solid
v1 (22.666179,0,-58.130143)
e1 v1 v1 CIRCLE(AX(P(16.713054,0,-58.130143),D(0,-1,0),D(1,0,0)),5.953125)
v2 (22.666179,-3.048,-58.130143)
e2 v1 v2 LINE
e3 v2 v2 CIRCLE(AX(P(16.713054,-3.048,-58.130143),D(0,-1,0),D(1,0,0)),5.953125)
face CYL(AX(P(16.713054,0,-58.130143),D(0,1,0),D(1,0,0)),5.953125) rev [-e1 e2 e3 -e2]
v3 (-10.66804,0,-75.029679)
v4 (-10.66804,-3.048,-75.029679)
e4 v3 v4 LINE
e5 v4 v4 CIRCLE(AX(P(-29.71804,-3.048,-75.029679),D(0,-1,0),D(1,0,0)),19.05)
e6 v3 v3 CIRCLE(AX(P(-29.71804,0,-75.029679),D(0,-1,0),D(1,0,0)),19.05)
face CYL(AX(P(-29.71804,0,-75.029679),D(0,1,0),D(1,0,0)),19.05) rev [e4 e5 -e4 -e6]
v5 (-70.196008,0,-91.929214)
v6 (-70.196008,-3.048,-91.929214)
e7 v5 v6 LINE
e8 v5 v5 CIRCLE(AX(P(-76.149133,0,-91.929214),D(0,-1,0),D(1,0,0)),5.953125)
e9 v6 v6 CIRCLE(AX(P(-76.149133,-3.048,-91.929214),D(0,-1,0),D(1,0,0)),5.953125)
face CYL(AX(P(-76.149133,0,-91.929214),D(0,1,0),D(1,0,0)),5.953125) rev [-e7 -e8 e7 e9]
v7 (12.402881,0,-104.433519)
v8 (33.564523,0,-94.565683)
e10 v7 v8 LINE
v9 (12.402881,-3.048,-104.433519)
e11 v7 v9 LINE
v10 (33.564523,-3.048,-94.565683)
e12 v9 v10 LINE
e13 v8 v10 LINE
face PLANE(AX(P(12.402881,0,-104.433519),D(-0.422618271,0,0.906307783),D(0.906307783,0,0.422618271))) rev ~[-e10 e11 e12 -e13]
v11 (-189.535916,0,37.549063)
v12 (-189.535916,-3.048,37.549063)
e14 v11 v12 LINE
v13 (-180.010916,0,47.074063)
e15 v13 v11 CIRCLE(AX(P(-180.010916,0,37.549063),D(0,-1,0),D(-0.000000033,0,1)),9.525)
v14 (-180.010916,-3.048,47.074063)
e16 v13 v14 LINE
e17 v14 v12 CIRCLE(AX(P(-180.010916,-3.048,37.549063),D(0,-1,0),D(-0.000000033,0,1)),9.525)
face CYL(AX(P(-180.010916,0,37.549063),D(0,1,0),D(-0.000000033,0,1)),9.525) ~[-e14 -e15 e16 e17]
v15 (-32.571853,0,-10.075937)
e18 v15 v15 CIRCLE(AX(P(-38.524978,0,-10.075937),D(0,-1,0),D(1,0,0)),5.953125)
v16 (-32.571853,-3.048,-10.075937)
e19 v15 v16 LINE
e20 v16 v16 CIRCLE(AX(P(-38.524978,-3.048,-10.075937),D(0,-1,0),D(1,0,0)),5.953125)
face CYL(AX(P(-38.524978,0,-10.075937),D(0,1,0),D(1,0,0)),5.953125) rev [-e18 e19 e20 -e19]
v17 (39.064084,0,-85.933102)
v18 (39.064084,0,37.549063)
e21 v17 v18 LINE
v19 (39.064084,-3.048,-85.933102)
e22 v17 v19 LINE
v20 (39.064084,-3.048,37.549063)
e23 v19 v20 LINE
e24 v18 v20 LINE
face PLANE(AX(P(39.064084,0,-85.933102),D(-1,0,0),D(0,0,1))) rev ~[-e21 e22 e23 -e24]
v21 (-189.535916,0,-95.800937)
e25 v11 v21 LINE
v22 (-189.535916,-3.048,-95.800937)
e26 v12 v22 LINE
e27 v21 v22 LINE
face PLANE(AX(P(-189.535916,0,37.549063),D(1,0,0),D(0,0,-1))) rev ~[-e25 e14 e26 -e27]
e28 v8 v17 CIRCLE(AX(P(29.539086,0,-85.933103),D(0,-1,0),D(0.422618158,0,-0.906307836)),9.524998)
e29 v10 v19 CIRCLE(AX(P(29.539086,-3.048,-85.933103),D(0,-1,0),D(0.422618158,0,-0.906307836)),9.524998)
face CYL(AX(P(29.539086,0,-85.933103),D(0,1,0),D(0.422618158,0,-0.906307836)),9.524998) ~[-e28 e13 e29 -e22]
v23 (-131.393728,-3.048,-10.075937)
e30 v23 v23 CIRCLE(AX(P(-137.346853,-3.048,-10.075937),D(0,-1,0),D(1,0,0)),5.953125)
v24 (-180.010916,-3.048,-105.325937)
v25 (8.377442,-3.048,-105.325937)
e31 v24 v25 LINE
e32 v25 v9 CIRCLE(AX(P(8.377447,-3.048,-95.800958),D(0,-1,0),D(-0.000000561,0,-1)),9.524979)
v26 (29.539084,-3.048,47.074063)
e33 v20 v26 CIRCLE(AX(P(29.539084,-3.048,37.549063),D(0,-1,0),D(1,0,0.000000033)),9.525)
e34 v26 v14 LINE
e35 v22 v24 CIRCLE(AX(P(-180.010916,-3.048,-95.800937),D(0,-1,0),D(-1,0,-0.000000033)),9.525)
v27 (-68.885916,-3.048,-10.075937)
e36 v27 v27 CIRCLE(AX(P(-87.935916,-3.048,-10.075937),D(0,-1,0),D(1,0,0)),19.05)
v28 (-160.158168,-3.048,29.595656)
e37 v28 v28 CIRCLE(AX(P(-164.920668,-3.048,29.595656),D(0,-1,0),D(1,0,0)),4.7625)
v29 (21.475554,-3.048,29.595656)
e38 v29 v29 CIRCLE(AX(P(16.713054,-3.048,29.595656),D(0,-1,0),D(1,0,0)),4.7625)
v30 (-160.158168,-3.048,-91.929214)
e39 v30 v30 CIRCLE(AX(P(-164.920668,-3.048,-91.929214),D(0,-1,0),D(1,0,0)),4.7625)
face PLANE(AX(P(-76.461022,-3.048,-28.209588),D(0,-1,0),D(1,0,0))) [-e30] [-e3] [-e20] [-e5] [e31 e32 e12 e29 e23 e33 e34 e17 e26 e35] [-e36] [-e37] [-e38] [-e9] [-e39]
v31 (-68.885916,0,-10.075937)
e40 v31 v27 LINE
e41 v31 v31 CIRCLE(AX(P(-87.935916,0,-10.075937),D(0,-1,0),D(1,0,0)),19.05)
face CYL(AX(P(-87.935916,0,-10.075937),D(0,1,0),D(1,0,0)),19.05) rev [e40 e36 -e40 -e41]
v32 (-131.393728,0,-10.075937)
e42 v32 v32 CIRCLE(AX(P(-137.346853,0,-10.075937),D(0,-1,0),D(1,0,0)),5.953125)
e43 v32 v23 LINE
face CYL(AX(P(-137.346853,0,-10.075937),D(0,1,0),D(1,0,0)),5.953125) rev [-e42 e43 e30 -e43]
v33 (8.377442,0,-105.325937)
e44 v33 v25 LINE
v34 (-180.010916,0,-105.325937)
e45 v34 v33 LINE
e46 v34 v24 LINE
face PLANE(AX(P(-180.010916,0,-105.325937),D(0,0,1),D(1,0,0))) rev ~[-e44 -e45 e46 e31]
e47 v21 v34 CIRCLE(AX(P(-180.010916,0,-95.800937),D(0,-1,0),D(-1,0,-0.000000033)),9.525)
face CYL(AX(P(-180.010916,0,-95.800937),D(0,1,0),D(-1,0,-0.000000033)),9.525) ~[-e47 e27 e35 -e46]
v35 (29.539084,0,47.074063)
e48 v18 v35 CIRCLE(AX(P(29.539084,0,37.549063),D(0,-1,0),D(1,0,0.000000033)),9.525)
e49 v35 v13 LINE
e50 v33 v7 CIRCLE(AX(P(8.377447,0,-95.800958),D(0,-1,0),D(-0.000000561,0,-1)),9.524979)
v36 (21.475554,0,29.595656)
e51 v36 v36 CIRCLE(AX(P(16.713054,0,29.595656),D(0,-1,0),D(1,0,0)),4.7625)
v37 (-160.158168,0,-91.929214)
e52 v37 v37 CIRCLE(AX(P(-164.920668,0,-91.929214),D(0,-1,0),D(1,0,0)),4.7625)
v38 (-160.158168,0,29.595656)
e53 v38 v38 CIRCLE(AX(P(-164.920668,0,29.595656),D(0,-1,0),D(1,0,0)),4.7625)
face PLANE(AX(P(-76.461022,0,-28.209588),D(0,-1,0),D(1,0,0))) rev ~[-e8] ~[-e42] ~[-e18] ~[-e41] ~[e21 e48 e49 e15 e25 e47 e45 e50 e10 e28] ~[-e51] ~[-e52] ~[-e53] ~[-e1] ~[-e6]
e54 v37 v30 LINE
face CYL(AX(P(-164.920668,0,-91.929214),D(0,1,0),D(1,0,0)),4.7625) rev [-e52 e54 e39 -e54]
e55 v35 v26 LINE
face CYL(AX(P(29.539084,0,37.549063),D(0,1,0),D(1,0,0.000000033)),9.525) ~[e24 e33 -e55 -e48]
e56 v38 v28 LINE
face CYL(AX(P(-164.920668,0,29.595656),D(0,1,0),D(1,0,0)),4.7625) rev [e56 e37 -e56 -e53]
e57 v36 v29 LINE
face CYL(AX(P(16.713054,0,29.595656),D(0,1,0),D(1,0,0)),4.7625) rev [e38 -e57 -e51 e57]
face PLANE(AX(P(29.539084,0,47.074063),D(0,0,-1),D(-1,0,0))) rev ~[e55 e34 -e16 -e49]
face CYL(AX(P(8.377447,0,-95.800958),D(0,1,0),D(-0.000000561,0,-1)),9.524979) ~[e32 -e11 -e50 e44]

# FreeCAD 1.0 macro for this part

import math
import FreeCAD as App
import Part
import Sketcher
Q = App.Units.Quantity

doc = App.newDocument("Part")
body = doc.addObject("PartDesign::Body", "Body")

sketch1 = doc.addObject("Sketcher::SketchObject", "Sketch")
body.addObject(sketch1)
sketch1.AttachmentSupport = (doc.XZ_Plane, [""])
sketch1.MapMode = "FlatFace"
sketch1.addGeometry([
    Part.ArcOfCircle(Part.Circle(App.Vector(-180, 37.5, 0), App.Vector(0, 0, 1), 9.5), math.radians(90), math.radians(180)),
    Part.LineSegment(App.Vector(-189.5, 37.5, 0), App.Vector(-189.5, -95.8, 0)),
    Part.ArcOfCircle(Part.Circle(App.Vector(-180, -95.8, 0), App.Vector(0, 0, 1), 9.5), math.radians(-180), math.radians(-90)),
    Part.LineSegment(App.Vector(-180, -105.3, 0), App.Vector(8.4, -105.3, 0)),
    Part.ArcOfCircle(Part.Circle(App.Vector(8.4, -95.8, 0), App.Vector(0, 0, 1), 9.5), math.radians(-90), math.radians(-65)),
    Part.LineSegment(App.Vector(12.4, -104.4, 0), App.Vector(33.6, -94.6, 0)),
    Part.ArcOfCircle(Part.Circle(App.Vector(29.5, -85.9, 0), App.Vector(0, 0, 1), 9.5), math.radians(-65), math.radians(0)),
    Part.LineSegment(App.Vector(39.1, -85.9, 0), App.Vector(39.1, 37.5, 0)),
    Part.ArcOfCircle(Part.Circle(App.Vector(29.5, 37.5, 0), App.Vector(0, 0, 1), 9.5), math.radians(0), math.radians(90)),
    Part.LineSegment(App.Vector(29.5, 47.1, 0), App.Vector(-180, 47.1, 0)),
    Part.Circle(App.Vector(-164.9, -91.9, 0), App.Vector(0, 0, 1), 4.8),
    Part.Circle(App.Vector(-76.1, -91.9, 0), App.Vector(0, 0, 1), 6),
    Part.Circle(App.Vector(-29.7, -75, 0), App.Vector(0, 0, 1), 19.1),
    Part.Circle(App.Vector(16.7, -58.1, 0), App.Vector(0, 0, 1), 6),
    Part.Circle(App.Vector(-137.3, -10.1, 0), App.Vector(0, 0, 1), 6),
    Part.Circle(App.Vector(-87.9, -10.1, 0), App.Vector(0, 0, 1), 19.1),
    Part.Circle(App.Vector(-164.9, 29.6, 0), App.Vector(0, 0, 1), 4.8),
    Part.Circle(App.Vector(-38.5, -10.1, 0), App.Vector(0, 0, 1), 6),
    Part.Circle(App.Vector(16.7, 29.6, 0), App.Vector(0, 0, 1), 4.8),
], False)
sketch1.addConstraint([
    Sketcher.Constraint("Tangent", 0, 2, 1, 1),
    Sketcher.Constraint("Tangent", 1, 2, 2, 1),
    Sketcher.Constraint("Tangent", 2, 2, 3, 1),
    Sketcher.Constraint("Tangent", 3, 2, 4, 1),
    Sketcher.Constraint("Tangent", 4, 2, 5, 1),
    Sketcher.Constraint("Tangent", 5, 2, 6, 1),
    Sketcher.Constraint("Tangent", 6, 2, 7, 1),
    Sketcher.Constraint("Tangent", 7, 2, 8, 1),
    Sketcher.Constraint("Tangent", 8, 2, 9, 1),
    Sketcher.Constraint("Tangent", 9, 2, 0, 1),
    Sketcher.Constraint("Vertical", 1),
    Sketcher.Constraint("Horizontal", 3),
    Sketcher.Constraint("Vertical", 7),
    Sketcher.Constraint("Horizontal", 9),
    Sketcher.Constraint("Equal", 0, 2),
    Sketcher.Constraint("Equal", 2, 8),
    Sketcher.Constraint("Equal", 11, 13),
    Sketcher.Constraint("Equal", 13, 14),
    Sketcher.Constraint("Equal", 12, 15),
    Sketcher.Constraint("Equal", 10, 16),
    Sketcher.Constraint("Equal", 14, 17),
    Sketcher.Constraint("Equal", 16, 18),
    Sketcher.Constraint("Horizontal", 10, 3, 11, 3),
    Sketcher.Constraint("Horizontal", 14, 3, 15, 3),
    Sketcher.Constraint("Horizontal", 15, 3, 17, 3),
    Sketcher.Constraint("Horizontal", 16, 3, 18, 3),
    Sketcher.Constraint("Vertical", 10, 3, 16, 3),
    Sketcher.Constraint("Vertical", 13, 3, 18, 3),
    Sketcher.Constraint("Vertical", 6, 3, 8, 2),
    Sketcher.Constraint("Diameter", 12, Q("1.5 in")),
    Sketcher.Constraint("Diameter", 10, Q("0.375 in")),
    Sketcher.Constraint("Diameter", 11, Q("0.46875 in")),
    Sketcher.Constraint("Angle", 5, Q("25.000001 deg")),
    Sketcher.Constraint("Radius", 0, Q("0.375 in")),
    Sketcher.Constraint("DistanceX", 0, 2, 15, 3, Q("4 in")),
    Sketcher.Constraint("DistanceX", 9, 2, 9, 1, Q("8.25 in")),
    Sketcher.Constraint("DistanceY", 1, 2, 1, 1, Q("5.25 in")),
    Sketcher.Constraint("DistanceY", 2, 2, 14, 3, Q("3.75 in")),
    Sketcher.Constraint("Radius", 4, Q("9.524979 mm")),
    Sketcher.Constraint("DistanceX", 3, 1, 3, 2, Q("188.388358 mm")),
    Sketcher.Constraint("DistanceY", 13, 3, 18, 3, Q("87.725799 mm")),
    Sketcher.Constraint("DistanceX", 10, 3, -1, 1, Q("164.920668 mm")),
    Sketcher.Constraint("DistanceX", 12, 3, -1, 1, Q("29.71804 mm")),
    Sketcher.Constraint("DistanceY", 12, 3, -1, 1, Q("75.029679 mm")),
    Sketcher.Constraint("DistanceX", -1, 1, 4, 2, Q("12.402881 mm")),
    Sketcher.Constraint("DistanceY", 4, 2, -1, 1, Q("104.433519 mm")),
    Sketcher.Constraint("DistanceY", 10, 3, 6, 3, Q("5.996111 mm")),
    Sketcher.Constraint("DistanceX", 11, 3, 4, 3, Q("84.52658 mm")),
    Sketcher.Constraint("DistanceX", 13, 3, 6, 3, Q("12.826032 mm")),
    Sketcher.Constraint("DistanceY", 6, 3, 13, 3, Q("27.80296 mm")),
    Sketcher.Constraint("DistanceX", 14, 3, 11, 3, Q("61.19772 mm")),
    Sketcher.Constraint("DistanceX", 15, 3, 17, 3, Q("49.410938 mm")),
])
pad1 = doc.addObject("PartDesign::Pad", "Pad")
body.addObject(pad1)
pad1.Profile = sketch1
pad1.Length = Q("0.12 in")

doc.recompute()
